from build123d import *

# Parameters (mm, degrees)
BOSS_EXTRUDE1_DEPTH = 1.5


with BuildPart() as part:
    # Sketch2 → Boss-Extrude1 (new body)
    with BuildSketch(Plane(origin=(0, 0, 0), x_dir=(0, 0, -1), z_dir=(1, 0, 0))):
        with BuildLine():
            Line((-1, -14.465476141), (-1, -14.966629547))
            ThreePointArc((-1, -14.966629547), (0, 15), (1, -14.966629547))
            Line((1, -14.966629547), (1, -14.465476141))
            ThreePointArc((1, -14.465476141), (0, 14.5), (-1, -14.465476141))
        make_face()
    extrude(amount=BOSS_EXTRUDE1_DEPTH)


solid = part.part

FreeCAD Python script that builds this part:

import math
import FreeCAD as App
import Part
import Sketcher
from FreeCAD import Vector
Q = App.Units.Quantity

doc = App.newDocument("Part")
params = doc.addObject("Spreadsheet::Sheet", "Params")
for row, (alias, value) in enumerate([
    ("sketch1_radius", "15 mm"),
    ("sketch1_radius2", "14.5 mm"),
    ("pad1_length", "1.5 mm"),
], start=1):
    params.set(f"A{row}", alias)
    params.set(f"B{row}", "=" + value)
    params.setAlias(f"B{row}", alias)

body = doc.addObject("PartDesign::Body", "Body")

sketch1 = body.newObject("Sketcher::SketchObject", "Sketch")
sketch1.AttachmentSupport = (doc.getObject("YZ_Plane"), [""])
sketch1.MapMode = "FlatFace"
sketch1.addGeometry([
    Part.LineSegment(Vector(-15, 1, 0), Vector(-14.5, 1, 0)),
    Part.ArcOfCircle(Part.Circle(Vector(0, 0, 0), Vector(0, 0, 1), 14.5), math.radians(-176), math.radians(176)),
    Part.LineSegment(Vector(-14.5, -1, 0), Vector(-15, -1, 0)),
    Part.ArcOfCircle(Part.Circle(Vector(0, 0, 0), Vector(0, 0, 1), 15), math.radians(-176), math.radians(176)),
], False)
sketch1.addConstraint([
    Sketcher.Constraint("Coincident", 0, 2, 1, 2),
    Sketcher.Constraint("Coincident", 1, 1, 2, 1),
    Sketcher.Constraint("Coincident", 2, 2, 3, 1),
    Sketcher.Constraint("Coincident", 3, 2, 0, 1),
    Sketcher.Constraint("Horizontal", 0),
    Sketcher.Constraint("Horizontal", 2),
    Sketcher.Constraint("Coincident", 1, 3, -1, 1),
    Sketcher.Constraint("Coincident", 3, 3, -1, 1),
    Sketcher.Constraint("Vertical", 0, 2, 1, 1),
    Sketcher.Constraint("Radius", 3, Q("15 mm")),
    Sketcher.Constraint("Radius", 1, Q("14.5 mm")),
    Sketcher.Constraint("DistanceY", -1, 1, 0, 2, Q("1 mm")),
])
sketch1.setExpression("Constraints[9]", "Params.sketch1_radius")
sketch1.setExpression("Constraints[10]", "Params.sketch1_radius2")
pad1 = body.newObject("PartDesign::Pad", "Pad")
pad1.Profile = sketch1
pad1.setExpression("Length", "Params.pad1_length")

doc.recompute()
